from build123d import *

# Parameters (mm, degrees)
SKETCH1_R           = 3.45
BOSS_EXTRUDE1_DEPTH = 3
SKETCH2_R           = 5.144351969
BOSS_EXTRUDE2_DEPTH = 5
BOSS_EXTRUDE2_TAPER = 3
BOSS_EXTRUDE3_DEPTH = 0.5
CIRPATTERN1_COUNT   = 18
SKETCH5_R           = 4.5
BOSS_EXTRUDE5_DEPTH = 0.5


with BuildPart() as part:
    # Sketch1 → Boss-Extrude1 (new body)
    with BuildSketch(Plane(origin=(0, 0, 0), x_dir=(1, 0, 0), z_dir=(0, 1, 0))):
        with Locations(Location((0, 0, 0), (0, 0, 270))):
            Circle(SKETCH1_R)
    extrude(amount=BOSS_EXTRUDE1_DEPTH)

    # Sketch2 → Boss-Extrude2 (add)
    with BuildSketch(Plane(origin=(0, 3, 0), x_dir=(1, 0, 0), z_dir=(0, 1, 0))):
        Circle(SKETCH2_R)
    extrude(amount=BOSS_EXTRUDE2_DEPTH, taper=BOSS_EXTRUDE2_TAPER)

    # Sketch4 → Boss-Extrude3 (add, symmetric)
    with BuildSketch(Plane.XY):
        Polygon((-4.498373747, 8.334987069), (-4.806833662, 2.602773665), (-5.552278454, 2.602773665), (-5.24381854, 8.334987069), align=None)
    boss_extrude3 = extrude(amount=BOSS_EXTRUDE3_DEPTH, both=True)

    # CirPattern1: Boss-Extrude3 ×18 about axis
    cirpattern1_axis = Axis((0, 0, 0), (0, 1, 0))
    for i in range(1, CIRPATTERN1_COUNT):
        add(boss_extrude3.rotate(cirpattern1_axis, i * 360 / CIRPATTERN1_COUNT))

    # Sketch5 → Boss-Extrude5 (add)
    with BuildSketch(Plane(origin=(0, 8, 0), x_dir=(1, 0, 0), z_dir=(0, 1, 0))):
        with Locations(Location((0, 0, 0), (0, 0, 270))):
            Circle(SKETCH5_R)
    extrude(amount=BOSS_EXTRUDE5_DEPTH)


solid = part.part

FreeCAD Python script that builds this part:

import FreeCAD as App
import Part
import Sketcher
Q = App.Units.Quantity

doc = App.newDocument("Part")
params = doc.addObject("Spreadsheet::Sheet", "Params")
for row, (alias, value) in enumerate([
    ("sketch1_diameter", "6.9 mm"),
    ("pad1_length", "3 mm"),
    ("pad2_length", "5 mm"),
    ("pad2_taper", "-3 deg"),
    ("pad3_length", "1 mm"),
    ("sketch4_diameter", "9 mm"),
    ("pad4_length", "0.5 mm"),
], start=1):
    params.set(f"A{row}", alias)
    params.set(f"B{row}", "=" + value)
    params.setAlias(f"B{row}", alias)

body = doc.addObject("PartDesign::Body", "Body")

sketch1 = body.newObject("Sketcher::SketchObject", "Sketch")
sketch1.AttachmentSupport = (doc.getObject("XZ_Plane"), [""])
sketch1.MapMode = "FlatFace"
sketch1.addGeometry(Part.Circle(App.Vector(0, 0, 0), App.Vector(0, 0, 1), 3.45), False)
sketch1.addConstraint(Sketcher.Constraint("Coincident", 0, 3, -1, 1))
sketch1.addConstraint(Sketcher.Constraint("Diameter", 0, Q("6.9 mm")))
sketch1.setExpression("Constraints[1]", "Params.sketch1_diameter")
pad1 = body.newObject("PartDesign::Pad", "Pad")
pad1.Profile = sketch1
pad1.setExpression("Length", "Params.pad1_length")
pad1.Reversed = True

sketch2 = body.newObject("Sketcher::SketchObject", "Sketch001")
sketch2.AttachmentSupport = (doc.getObject("XZ_Plane"), [""])
sketch2.MapMode = "FlatFace"
sketch2.AttachmentOffset = App.Placement(App.Vector(0, 0, -3), App.Rotation())
sketch2.addGeometry(Part.Circle(App.Vector(0, 0, 0), App.Vector(0, 0, 1), 5.144352), False)
sketch2.addConstraint(Sketcher.Constraint("Coincident", 0, 3, -1, 1))
sketch2.addConstraint(Sketcher.Constraint("Diameter", 0, Q("10.288704 mm")))
pad2 = body.newObject("PartDesign::Pad", "Pad001")
pad2.Profile = sketch2
pad2.setExpression("Length", "Params.pad2_length")
pad2.Reversed = True
pad2.setExpression("TaperAngle", "Params.pad2_taper")

sketch3 = body.newObject("Sketcher::SketchObject", "Sketch002")
sketch3.AttachmentSupport = (doc.getObject("XY_Plane"), [""])
sketch3.MapMode = "FlatFace"
sketch3.addGeometry(Part.LineSegment(App.Vector(-4.806834, 2.602774, 0), App.Vector(-4.498374, 8.334987, 0)), False)
sketch3.addGeometry(Part.LineSegment(App.Vector(-4.498374, 8.334987, 0), App.Vector(-5.243819, 8.334987, 0)), False)
sketch3.addGeometry(Part.LineSegment(App.Vector(-5.243819, 8.334987, 0), App.Vector(-5.552278, 2.602774, 0)), False)
sketch3.addGeometry(Part.LineSegment(App.Vector(-5.552278, 2.602774, 0), App.Vector(-4.806834, 2.602774, 0)), False)
sketch3.addConstraint(Sketcher.Constraint("Coincident", 0, 2, 1, 1))
sketch3.addConstraint(Sketcher.Constraint("Coincident", 1, 2, 2, 1))
sketch3.addConstraint(Sketcher.Constraint("Coincident", 2, 2, 3, 1))
sketch3.addConstraint(Sketcher.Constraint("Coincident", 3, 2, 0, 1))
sketch3.addConstraint(Sketcher.Constraint("Horizontal", 1))
sketch3.addConstraint(Sketcher.Constraint("Horizontal", 3))
sketch3.addConstraint(Sketcher.Constraint("Parallel", 0, 2))
sketch3.addConstraint(Sketcher.Constraint("DistanceX", 1, 2, 1, 1, Q("0.745445 mm")))
sketch3.addConstraint(Sketcher.Constraint("DistanceX", 1, 2, -1, 1, Q("5.243819 mm")))
sketch3.addConstraint(Sketcher.Constraint("DistanceX", 2, 2, -1, 1, Q("5.552278 mm")))
sketch3.addConstraint(Sketcher.Constraint("Distance", 0, Q("5.740507 mm")))
sketch3.addConstraint(Sketcher.Constraint("DistanceY", -1, 1, 0, 2, Q("8.334987 mm")))
pad3 = body.newObject("PartDesign::Pad", "Pad002")
pad3.Profile = sketch3
pad3.setExpression("Length", "Params.pad3_length")
pad3.Midplane = True
doc.recompute()

polarpattern = body.newObject("PartDesign::PolarPattern", "PolarPattern")
polarpattern.Originals = [pad3]
polarpattern.Axis = (doc.getObject("Y_Axis"), [""])
polarpattern.Angle = 360
polarpattern.Occurrences = 18
body.Tip = polarpattern

sketch4 = body.newObject("Sketcher::SketchObject", "Sketch003")
sketch4.AttachmentSupport = (doc.getObject("XZ_Plane"), [""])
sketch4.MapMode = "FlatFace"
sketch4.AttachmentOffset = App.Placement(App.Vector(0, 0, -8), App.Rotation())
sketch4.addGeometry(Part.Circle(App.Vector(0, 0, 0), App.Vector(0, 0, 1), 4.5), False)
sketch4.addConstraint(Sketcher.Constraint("Coincident", 0, 3, -1, 1))
sketch4.addConstraint(Sketcher.Constraint("Diameter", 0, Q("9 mm")))
sketch4.setExpression("Constraints[1]", "Params.sketch4_diameter")
pad4 = body.newObject("PartDesign::Pad", "Pad003")
pad4.Profile = sketch4
pad4.setExpression("Length", "Params.pad4_length")
pad4.Reversed = True

doc.recompute()
